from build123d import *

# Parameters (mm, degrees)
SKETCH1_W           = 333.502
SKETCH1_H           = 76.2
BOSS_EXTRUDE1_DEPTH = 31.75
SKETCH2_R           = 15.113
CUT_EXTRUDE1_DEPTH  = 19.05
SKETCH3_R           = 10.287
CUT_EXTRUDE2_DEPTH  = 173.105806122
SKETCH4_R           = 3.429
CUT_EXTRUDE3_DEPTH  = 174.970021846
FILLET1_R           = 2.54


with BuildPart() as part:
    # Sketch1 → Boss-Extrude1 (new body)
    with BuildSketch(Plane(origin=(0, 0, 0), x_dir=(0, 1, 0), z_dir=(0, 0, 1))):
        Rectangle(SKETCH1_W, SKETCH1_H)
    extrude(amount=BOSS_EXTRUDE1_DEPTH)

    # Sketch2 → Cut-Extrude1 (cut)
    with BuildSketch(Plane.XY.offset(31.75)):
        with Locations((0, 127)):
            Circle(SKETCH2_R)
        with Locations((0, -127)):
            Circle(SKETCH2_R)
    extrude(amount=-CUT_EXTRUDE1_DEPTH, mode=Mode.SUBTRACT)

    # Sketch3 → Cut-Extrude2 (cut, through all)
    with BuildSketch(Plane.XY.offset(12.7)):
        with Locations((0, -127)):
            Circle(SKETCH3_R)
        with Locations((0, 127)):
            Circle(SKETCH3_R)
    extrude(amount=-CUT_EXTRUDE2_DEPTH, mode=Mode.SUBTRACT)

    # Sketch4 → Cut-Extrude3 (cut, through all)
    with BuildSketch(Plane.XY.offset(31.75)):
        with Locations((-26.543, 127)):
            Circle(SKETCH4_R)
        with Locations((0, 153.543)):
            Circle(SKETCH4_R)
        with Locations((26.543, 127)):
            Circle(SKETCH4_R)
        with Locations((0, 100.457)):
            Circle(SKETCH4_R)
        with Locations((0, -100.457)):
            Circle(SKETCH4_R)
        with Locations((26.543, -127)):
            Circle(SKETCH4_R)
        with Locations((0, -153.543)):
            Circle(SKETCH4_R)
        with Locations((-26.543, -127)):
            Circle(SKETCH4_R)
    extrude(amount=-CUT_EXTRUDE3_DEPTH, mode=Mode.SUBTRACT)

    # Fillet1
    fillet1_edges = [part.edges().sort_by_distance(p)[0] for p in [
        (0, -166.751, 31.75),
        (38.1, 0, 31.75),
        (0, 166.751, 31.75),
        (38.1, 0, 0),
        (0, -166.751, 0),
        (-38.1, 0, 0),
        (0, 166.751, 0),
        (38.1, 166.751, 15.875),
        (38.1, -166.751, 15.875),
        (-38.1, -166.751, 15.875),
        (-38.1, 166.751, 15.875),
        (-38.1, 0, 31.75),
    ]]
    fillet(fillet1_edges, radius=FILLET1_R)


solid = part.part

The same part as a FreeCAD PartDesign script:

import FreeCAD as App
import Part
import Sketcher

V = App.Vector
Q = App.Units.Quantity


def edges_at(feature, points):
    """Names of the edges that pass closest to the given points."""
    edges = feature.Shape.Edges
    near = lambda p: min(range(len(edges)), key=lambda i: edges[i].distToShape(Part.Vertex(*p))[0])
    return sorted({f"Edge{near(p) + 1}" for p in points})


def add_polygon(sketch, points):
    """Adds a closed chain of lines whose ends are joined by coincident constraints."""
    first, n = sketch.GeometryCount, len(points)
    for a, b in zip(points, points[1:] + points[:1]):
        sketch.addGeometry(Part.LineSegment(App.Vector(*a, 0), App.Vector(*b, 0)), False)
    for i in range(n):
        sketch.addConstraint(Sketcher.Constraint("Coincident", first + i, 2, first + (i + 1) % n, 1))

doc = App.newDocument("Part")
body = doc.addObject("PartDesign::Body", "Body")

sketch1 = body.newObject("Sketcher::SketchObject", "Sketch")
sketch1.AttachmentSupport = (doc.getObject("XY_Plane"), [""])
sketch1.MapMode = "FlatFace"
add_polygon(sketch1, [(-38, -167), (38, -167), (38, 167), (-38, 167)])
sketch1.addConstraint(Sketcher.Constraint("Horizontal", 0))
sketch1.addConstraint(Sketcher.Constraint("Vertical", 1))
sketch1.addConstraint(Sketcher.Constraint("Horizontal", 2))
sketch1.addConstraint(Sketcher.Constraint("Vertical", 3))
sketch1.addConstraint(Sketcher.Constraint("Symmetric", 0, 2, 2, 2, -1, 1))
sketch1.addConstraint(Sketcher.Constraint("DistanceX", 0, 1, 0, 2, Q("3 in")))
sketch1.addConstraint(Sketcher.Constraint("DistanceY", 1, 1, 1, 2, Q("13.13 in")))
pad1 = body.newObject("PartDesign::Pad", "Pad")
pad1.Profile = sketch1
pad1.Length = Q("1.25 in")

sketch2 = body.newObject("Sketcher::SketchObject", "Sketch001")
sketch2.AttachmentSupport = (doc.getObject("XY_Plane"), [""])
sketch2.MapMode = "FlatFace"
sketch2.AttachmentOffset = App.Placement(V(0, 0, 1.25 * 25.4), App.Rotation())
sketch2.addGeometry(Part.Circle(V(0, 127, 0), V(0, 0, 1), 15), False)
sketch2.addGeometry(Part.Circle(V(0, -127, 0), V(0, 0, 1), 15), False)
sketch2.addConstraint(Sketcher.Constraint("Equal", 0, 1))
sketch2.addConstraint(Sketcher.Constraint("Symmetric", 0, 3, 1, 3, -1, 1))
sketch2.addConstraint(Sketcher.Constraint("PointOnObject", 0, 3, -2))
sketch2.addConstraint(Sketcher.Constraint("Diameter", 0, Q("1.19 in")))
sketch2.addConstraint(Sketcher.Constraint("DistanceY", -1, 1, 0, 3, Q("5 in")))
pocket1 = body.newObject("PartDesign::Pocket", "Pocket")
pocket1.Profile = sketch2
pocket1.Length = Q("0.75 in")

sketch3 = body.newObject("Sketcher::SketchObject", "Sketch002")
sketch3.AttachmentSupport = (doc.getObject("XY_Plane"), [""])
sketch3.MapMode = "FlatFace"
sketch3.AttachmentOffset = App.Placement(V(0, 0, 0.5 * 25.4), App.Rotation())
sketch3.addGeometry(Part.Circle(V(0, -127, 0), V(0, 0, 1), 10), False)
sketch3.addGeometry(Part.Circle(V(0, 127, 0), V(0, 0, 1), 10), False)
sketch3.addConstraint(Sketcher.Constraint("Equal", 0, 1))
sketch3.addConstraint(Sketcher.Constraint("Symmetric", 0, 3, 1, 3, -1, 1))
sketch3.addConstraint(Sketcher.Constraint("PointOnObject", 0, 3, -2))
sketch3.addConstraint(Sketcher.Constraint("Diameter", 0, Q("0.81 in")))
sketch3.addConstraint(Sketcher.Constraint("DistanceY", 0, 3, -1, 1, Q("5 in")))
pocket2 = body.newObject("PartDesign::Pocket", "Pocket001")
pocket2.Profile = sketch3
pocket2.Type = "ThroughAll"

sketch4 = body.newObject("Sketcher::SketchObject", "Sketch003")
sketch4.AttachmentSupport = (doc.getObject("XY_Plane"), [""])
sketch4.MapMode = "FlatFace"
sketch4.AttachmentOffset = App.Placement(V(0, 0, 1.25 * 25.4), App.Rotation())
sketch4.addGeometry(Part.Circle(V(-26.5, 127, 0), V(0, 0, 1), 3.4), False)
sketch4.addGeometry(Part.Circle(V(0, 153.5, 0), V(0, 0, 1), 3.4), False)
sketch4.addGeometry(Part.Circle(V(26.5, 127, 0), V(0, 0, 1), 3.4), False)
sketch4.addGeometry(Part.Circle(V(0, 100.5, 0), V(0, 0, 1), 3.4), False)
sketch4.addGeometry(Part.Circle(V(0, -100.5, 0), V(0, 0, 1), 3.4), False)
sketch4.addGeometry(Part.Circle(V(26.5, -127, 0), V(0, 0, 1), 3.4), False)
sketch4.addGeometry(Part.Circle(V(0, -153.5, 0), V(0, 0, 1), 3.4), False)
sketch4.addGeometry(Part.Circle(V(-26.5, -127, 0), V(0, 0, 1), 3.4), False)
sketch4.addConstraint(Sketcher.Constraint("Equal", 0, 1))
sketch4.addConstraint(Sketcher.Constraint("Equal", 1, 2))
sketch4.addConstraint(Sketcher.Constraint("Equal", 2, 3))
sketch4.addConstraint(Sketcher.Constraint("Equal", 3, 4))
sketch4.addConstraint(Sketcher.Constraint("Equal", 4, 5))
sketch4.addConstraint(Sketcher.Constraint("Equal", 5, 6))
sketch4.addConstraint(Sketcher.Constraint("Equal", 6, 7))
sketch4.addConstraint(Sketcher.Constraint("Symmetric", 3, 3, 4, 3, -1, 1))
sketch4.addConstraint(Sketcher.Constraint("Symmetric", 0, 3, 5, 3, -1, 1))
sketch4.addConstraint(Sketcher.Constraint("Symmetric", 1, 3, 6, 3, -1, 1))
sketch4.addConstraint(Sketcher.Constraint("Symmetric", 2, 3, 7, 3, -1, 1))
sketch4.addConstraint(Sketcher.Constraint("Symmetric", 0, 3, 2, 3, -2))
sketch4.addConstraint(Sketcher.Constraint("PointOnObject", 1, 3, -2))
sketch4.addConstraint(Sketcher.Constraint("PointOnObject", 3, 3, -2))
sketch4.addConstraint(Sketcher.Constraint("Diameter", 0, Q("0.27 in")))
sketch4.addConstraint(Sketcher.Constraint("DistanceY", -1, 1, 0, 3, Q("5 in")))
sketch4.addConstraint(Sketcher.Constraint("DistanceY", 4, 3, 1, 3, Q("10 in")))
sketch4.addConstraint(Sketcher.Constraint("DistanceX", 0, 3, 2, 3, Q("2.09 in")))
sketch4.addConstraint(Sketcher.Constraint("DistanceY", 3, 3, 1, 3, Q("2.09 in")))
pocket3 = body.newObject("PartDesign::Pocket", "Pocket002")
pocket3.Profile = sketch4
pocket3.Type = "ThroughAll"
doc.recompute()

fillet = body.newObject("PartDesign::Fillet", "Fillet")
fillet.Base = (pocket3, edges_at(pocket3, [
    (0, -166.751, 31.75),
    (38.1, 0, 31.75),
    (0, 166.751, 31.75),
    (38.1, 0, 0),
    (0, -166.751, 0),
    (-38.1, 0, 0),
    (0, 166.751, 0),
    (38.1, 166.751, 15.875),
    (38.1, -166.751, 15.875),
    (-38.1, -166.751, 15.875),
    (-38.1, 166.751, 15.875),
    (-38.1, 0, 31.75),
]))
fillet.Radius = Q("0.1 in")

doc.recompute()
